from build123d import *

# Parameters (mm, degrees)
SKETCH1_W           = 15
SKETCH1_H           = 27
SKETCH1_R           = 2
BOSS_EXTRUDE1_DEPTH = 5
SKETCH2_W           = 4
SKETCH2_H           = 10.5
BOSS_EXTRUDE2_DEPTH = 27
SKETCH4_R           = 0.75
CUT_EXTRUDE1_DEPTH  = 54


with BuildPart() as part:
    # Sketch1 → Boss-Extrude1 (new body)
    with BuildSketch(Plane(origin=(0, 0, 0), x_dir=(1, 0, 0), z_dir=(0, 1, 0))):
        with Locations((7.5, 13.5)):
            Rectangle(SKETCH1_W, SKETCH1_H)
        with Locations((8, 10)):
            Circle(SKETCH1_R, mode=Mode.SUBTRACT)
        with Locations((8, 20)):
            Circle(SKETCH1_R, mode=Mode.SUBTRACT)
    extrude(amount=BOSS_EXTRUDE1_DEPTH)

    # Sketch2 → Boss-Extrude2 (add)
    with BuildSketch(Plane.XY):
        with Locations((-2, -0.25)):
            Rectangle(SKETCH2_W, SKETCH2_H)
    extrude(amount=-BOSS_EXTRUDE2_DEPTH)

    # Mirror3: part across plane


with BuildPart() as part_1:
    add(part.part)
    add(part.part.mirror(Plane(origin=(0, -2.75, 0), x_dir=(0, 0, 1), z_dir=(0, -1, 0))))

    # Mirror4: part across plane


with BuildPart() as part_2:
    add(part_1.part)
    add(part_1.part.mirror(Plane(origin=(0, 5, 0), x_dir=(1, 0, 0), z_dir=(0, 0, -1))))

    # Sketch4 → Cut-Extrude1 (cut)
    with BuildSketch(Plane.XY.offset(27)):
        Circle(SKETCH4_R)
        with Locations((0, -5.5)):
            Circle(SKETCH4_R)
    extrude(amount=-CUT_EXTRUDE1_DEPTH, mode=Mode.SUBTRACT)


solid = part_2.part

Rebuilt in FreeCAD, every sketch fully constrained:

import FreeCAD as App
import Part
import Sketcher

V = App.Vector
Q = App.Units.Quantity

doc = App.newDocument("Part")
body = doc.addObject("PartDesign::Body", "Body")

# Sketch on XZ plane
sketch1 = body.newObject("Sketcher::SketchObject", "Sketch")
sketch1.AttachmentSupport = (doc.getObject("XZ_Plane"), [""])
sketch1.MapMode = "FlatFace"
sketch1.addGeometry([
    Part.LineSegment(V(0, -27, 0), V(0, 0, 0)),  # 0
    Part.LineSegment(V(0, 0, 0), V(15, 0, 0)),  # 1
    Part.LineSegment(V(15, 0, 0), V(15, -27, 0)),  # 2
    Part.LineSegment(V(15, -27, 0), V(0, -27, 0)),  # 3
    Part.Circle(V(8, -10, 0), V(0, 0, 1), 2),  # 4
    Part.Circle(V(8, -20, 0), V(0, 0, 1), 2),  # 5
], False)
sketch1.addConstraint([
    Sketcher.Constraint("Coincident", 0, 2, 1, 1),
    Sketcher.Constraint("Coincident", 1, 2, 2, 1),
    Sketcher.Constraint("Coincident", 2, 2, 3, 1),
    Sketcher.Constraint("Coincident", 3, 2, 0, 1),
    Sketcher.Constraint("Vertical", 0),
    Sketcher.Constraint("Horizontal", 1),
    Sketcher.Constraint("Vertical", 2),
    Sketcher.Constraint("Horizontal", 3),
    Sketcher.Constraint("Coincident", 0, 2, -1, 1),
    Sketcher.Constraint("Equal", 4, 5),
    Sketcher.Constraint("Vertical", 4, 3, 5, 3),
    Sketcher.Constraint("Diameter", 4, Q("4 mm")),
    Sketcher.Constraint("DistanceX", 1, 1, 1, 2, Q("15 mm")),
    Sketcher.Constraint("DistanceY", 0, 1, 0, 2, Q("27 mm")),
    Sketcher.Constraint("DistanceX", -1, 1, 4, 3, Q("8 mm")),
    Sketcher.Constraint("DistanceY", 4, 3, -1, 1, Q("10 mm")),
    Sketcher.Constraint("DistanceY", 5, 3, -1, 1, Q("20 mm")),
])
pad1 = body.newObject("PartDesign::Pad", "Pad")
pad1.Profile = sketch1
pad1.Length = 5
pad1.Reversed = True

# Sketch on XY plane
sketch2 = body.newObject("Sketcher::SketchObject", "Sketch001")
sketch2.AttachmentSupport = (doc.getObject("XY_Plane"), [""])
sketch2.MapMode = "FlatFace"
sketch2.addGeometry([
    Part.LineSegment(V(-4, 5, 0), V(-4, -5.5, 0)),
    Part.LineSegment(V(-4, -5.5, 0), V(0, -5.5, 0)),
    Part.LineSegment(V(0, -5.5, 0), V(0, 5, 0)),
    Part.LineSegment(V(0, 5, 0), V(-4, 5, 0)),
], False)
sketch2.addConstraint([
    Sketcher.Constraint("Coincident", 0, 2, 1, 1),
    Sketcher.Constraint("Coincident", 1, 2, 2, 1),
    Sketcher.Constraint("Coincident", 2, 2, 3, 1),
    Sketcher.Constraint("Coincident", 3, 2, 0, 1),
    Sketcher.Constraint("Vertical", 0),
    Sketcher.Constraint("Horizontal", 1),
    Sketcher.Constraint("Vertical", 2),
    Sketcher.Constraint("Horizontal", 3),
    Sketcher.Constraint("PointOnObject", 1, 2, -2),
    Sketcher.Constraint("DistanceX", 1, 1, 1, 2, Q("4 mm")),
    Sketcher.Constraint("DistanceY", 0, 2, 0, 1, Q("10.5 mm")),
    Sketcher.Constraint("DistanceY", -1, 1, 2, 2, Q("5 mm")),
])
pad2 = body.newObject("PartDesign::Pad", "Pad001")
pad2.Profile = sketch2
pad2.Length = 27
pad2.Reversed = True
body2 = doc.addObject("PartDesign::Body", "Body001")
doc.recompute()

body2.BaseFeature = body
doc.recompute()

mirroring = doc.addObject("Part::Mirroring", "Mirroring")
mirroring.Source = body
mirroring.Base = V(0, -2.75, 0)
mirroring.Normal = V(0, -1, 0)
body3 = doc.addObject("PartDesign::Body", "Body002")
body3.BaseFeature = mirroring
boolean = body2.newObject("PartDesign::Boolean", "Boolean")
boolean.Type = "Fuse"
boolean.addObjects([body3])
doc.recompute()
body4 = doc.addObject("PartDesign::Body", "Body003")
doc.recompute()

body4.BaseFeature = body2
doc.recompute()

mirroring2 = doc.addObject("Part::Mirroring", "Mirroring001")
mirroring2.Source = body2
mirroring2.Base = V(0, 5, 0)
mirroring2.Normal = V(0, 0, -1)
body5 = doc.addObject("PartDesign::Body", "Body004")
body5.BaseFeature = mirroring2
boolean2 = body4.newObject("PartDesign::Boolean", "Boolean001")
boolean2.Type = "Fuse"
boolean2.addObjects([body5])
doc.recompute()

# Sketch on XY plane
sketch3 = body4.newObject("Sketcher::SketchObject", "Sketch002")
sketch3.AttachmentSupport = (doc.getObject("XY_Plane003"), [""])
sketch3.MapMode = "FlatFace"
sketch3.AttachmentOffset = App.Placement(V(0, 0, 27), App.Rotation())
sketch3.addGeometry([
    Part.Circle(V(0, 0, 0), V(0, 0, 1), 0.75),
    Part.Circle(V(0, -5.5, 0), V(0, 0, 1), 0.75),
], False)
sketch3.addConstraint([
    Sketcher.Constraint("Coincident", 0, 3, -1, 1),
    Sketcher.Constraint("Equal", 0, 1),
    Sketcher.Constraint("PointOnObject", 1, 3, -2),
    Sketcher.Constraint("Diameter", 0, Q("1.5 mm")),
    Sketcher.Constraint("DistanceY", 1, 3, -1, 1, Q("5.5 mm")),
])
pocket1 = body4.newObject("PartDesign::Pocket", "Pocket")
pocket1.Profile = sketch3
pocket1.Length = 54
mirroring.Visibility = False
mirroring2.Visibility = False

doc.recompute()
